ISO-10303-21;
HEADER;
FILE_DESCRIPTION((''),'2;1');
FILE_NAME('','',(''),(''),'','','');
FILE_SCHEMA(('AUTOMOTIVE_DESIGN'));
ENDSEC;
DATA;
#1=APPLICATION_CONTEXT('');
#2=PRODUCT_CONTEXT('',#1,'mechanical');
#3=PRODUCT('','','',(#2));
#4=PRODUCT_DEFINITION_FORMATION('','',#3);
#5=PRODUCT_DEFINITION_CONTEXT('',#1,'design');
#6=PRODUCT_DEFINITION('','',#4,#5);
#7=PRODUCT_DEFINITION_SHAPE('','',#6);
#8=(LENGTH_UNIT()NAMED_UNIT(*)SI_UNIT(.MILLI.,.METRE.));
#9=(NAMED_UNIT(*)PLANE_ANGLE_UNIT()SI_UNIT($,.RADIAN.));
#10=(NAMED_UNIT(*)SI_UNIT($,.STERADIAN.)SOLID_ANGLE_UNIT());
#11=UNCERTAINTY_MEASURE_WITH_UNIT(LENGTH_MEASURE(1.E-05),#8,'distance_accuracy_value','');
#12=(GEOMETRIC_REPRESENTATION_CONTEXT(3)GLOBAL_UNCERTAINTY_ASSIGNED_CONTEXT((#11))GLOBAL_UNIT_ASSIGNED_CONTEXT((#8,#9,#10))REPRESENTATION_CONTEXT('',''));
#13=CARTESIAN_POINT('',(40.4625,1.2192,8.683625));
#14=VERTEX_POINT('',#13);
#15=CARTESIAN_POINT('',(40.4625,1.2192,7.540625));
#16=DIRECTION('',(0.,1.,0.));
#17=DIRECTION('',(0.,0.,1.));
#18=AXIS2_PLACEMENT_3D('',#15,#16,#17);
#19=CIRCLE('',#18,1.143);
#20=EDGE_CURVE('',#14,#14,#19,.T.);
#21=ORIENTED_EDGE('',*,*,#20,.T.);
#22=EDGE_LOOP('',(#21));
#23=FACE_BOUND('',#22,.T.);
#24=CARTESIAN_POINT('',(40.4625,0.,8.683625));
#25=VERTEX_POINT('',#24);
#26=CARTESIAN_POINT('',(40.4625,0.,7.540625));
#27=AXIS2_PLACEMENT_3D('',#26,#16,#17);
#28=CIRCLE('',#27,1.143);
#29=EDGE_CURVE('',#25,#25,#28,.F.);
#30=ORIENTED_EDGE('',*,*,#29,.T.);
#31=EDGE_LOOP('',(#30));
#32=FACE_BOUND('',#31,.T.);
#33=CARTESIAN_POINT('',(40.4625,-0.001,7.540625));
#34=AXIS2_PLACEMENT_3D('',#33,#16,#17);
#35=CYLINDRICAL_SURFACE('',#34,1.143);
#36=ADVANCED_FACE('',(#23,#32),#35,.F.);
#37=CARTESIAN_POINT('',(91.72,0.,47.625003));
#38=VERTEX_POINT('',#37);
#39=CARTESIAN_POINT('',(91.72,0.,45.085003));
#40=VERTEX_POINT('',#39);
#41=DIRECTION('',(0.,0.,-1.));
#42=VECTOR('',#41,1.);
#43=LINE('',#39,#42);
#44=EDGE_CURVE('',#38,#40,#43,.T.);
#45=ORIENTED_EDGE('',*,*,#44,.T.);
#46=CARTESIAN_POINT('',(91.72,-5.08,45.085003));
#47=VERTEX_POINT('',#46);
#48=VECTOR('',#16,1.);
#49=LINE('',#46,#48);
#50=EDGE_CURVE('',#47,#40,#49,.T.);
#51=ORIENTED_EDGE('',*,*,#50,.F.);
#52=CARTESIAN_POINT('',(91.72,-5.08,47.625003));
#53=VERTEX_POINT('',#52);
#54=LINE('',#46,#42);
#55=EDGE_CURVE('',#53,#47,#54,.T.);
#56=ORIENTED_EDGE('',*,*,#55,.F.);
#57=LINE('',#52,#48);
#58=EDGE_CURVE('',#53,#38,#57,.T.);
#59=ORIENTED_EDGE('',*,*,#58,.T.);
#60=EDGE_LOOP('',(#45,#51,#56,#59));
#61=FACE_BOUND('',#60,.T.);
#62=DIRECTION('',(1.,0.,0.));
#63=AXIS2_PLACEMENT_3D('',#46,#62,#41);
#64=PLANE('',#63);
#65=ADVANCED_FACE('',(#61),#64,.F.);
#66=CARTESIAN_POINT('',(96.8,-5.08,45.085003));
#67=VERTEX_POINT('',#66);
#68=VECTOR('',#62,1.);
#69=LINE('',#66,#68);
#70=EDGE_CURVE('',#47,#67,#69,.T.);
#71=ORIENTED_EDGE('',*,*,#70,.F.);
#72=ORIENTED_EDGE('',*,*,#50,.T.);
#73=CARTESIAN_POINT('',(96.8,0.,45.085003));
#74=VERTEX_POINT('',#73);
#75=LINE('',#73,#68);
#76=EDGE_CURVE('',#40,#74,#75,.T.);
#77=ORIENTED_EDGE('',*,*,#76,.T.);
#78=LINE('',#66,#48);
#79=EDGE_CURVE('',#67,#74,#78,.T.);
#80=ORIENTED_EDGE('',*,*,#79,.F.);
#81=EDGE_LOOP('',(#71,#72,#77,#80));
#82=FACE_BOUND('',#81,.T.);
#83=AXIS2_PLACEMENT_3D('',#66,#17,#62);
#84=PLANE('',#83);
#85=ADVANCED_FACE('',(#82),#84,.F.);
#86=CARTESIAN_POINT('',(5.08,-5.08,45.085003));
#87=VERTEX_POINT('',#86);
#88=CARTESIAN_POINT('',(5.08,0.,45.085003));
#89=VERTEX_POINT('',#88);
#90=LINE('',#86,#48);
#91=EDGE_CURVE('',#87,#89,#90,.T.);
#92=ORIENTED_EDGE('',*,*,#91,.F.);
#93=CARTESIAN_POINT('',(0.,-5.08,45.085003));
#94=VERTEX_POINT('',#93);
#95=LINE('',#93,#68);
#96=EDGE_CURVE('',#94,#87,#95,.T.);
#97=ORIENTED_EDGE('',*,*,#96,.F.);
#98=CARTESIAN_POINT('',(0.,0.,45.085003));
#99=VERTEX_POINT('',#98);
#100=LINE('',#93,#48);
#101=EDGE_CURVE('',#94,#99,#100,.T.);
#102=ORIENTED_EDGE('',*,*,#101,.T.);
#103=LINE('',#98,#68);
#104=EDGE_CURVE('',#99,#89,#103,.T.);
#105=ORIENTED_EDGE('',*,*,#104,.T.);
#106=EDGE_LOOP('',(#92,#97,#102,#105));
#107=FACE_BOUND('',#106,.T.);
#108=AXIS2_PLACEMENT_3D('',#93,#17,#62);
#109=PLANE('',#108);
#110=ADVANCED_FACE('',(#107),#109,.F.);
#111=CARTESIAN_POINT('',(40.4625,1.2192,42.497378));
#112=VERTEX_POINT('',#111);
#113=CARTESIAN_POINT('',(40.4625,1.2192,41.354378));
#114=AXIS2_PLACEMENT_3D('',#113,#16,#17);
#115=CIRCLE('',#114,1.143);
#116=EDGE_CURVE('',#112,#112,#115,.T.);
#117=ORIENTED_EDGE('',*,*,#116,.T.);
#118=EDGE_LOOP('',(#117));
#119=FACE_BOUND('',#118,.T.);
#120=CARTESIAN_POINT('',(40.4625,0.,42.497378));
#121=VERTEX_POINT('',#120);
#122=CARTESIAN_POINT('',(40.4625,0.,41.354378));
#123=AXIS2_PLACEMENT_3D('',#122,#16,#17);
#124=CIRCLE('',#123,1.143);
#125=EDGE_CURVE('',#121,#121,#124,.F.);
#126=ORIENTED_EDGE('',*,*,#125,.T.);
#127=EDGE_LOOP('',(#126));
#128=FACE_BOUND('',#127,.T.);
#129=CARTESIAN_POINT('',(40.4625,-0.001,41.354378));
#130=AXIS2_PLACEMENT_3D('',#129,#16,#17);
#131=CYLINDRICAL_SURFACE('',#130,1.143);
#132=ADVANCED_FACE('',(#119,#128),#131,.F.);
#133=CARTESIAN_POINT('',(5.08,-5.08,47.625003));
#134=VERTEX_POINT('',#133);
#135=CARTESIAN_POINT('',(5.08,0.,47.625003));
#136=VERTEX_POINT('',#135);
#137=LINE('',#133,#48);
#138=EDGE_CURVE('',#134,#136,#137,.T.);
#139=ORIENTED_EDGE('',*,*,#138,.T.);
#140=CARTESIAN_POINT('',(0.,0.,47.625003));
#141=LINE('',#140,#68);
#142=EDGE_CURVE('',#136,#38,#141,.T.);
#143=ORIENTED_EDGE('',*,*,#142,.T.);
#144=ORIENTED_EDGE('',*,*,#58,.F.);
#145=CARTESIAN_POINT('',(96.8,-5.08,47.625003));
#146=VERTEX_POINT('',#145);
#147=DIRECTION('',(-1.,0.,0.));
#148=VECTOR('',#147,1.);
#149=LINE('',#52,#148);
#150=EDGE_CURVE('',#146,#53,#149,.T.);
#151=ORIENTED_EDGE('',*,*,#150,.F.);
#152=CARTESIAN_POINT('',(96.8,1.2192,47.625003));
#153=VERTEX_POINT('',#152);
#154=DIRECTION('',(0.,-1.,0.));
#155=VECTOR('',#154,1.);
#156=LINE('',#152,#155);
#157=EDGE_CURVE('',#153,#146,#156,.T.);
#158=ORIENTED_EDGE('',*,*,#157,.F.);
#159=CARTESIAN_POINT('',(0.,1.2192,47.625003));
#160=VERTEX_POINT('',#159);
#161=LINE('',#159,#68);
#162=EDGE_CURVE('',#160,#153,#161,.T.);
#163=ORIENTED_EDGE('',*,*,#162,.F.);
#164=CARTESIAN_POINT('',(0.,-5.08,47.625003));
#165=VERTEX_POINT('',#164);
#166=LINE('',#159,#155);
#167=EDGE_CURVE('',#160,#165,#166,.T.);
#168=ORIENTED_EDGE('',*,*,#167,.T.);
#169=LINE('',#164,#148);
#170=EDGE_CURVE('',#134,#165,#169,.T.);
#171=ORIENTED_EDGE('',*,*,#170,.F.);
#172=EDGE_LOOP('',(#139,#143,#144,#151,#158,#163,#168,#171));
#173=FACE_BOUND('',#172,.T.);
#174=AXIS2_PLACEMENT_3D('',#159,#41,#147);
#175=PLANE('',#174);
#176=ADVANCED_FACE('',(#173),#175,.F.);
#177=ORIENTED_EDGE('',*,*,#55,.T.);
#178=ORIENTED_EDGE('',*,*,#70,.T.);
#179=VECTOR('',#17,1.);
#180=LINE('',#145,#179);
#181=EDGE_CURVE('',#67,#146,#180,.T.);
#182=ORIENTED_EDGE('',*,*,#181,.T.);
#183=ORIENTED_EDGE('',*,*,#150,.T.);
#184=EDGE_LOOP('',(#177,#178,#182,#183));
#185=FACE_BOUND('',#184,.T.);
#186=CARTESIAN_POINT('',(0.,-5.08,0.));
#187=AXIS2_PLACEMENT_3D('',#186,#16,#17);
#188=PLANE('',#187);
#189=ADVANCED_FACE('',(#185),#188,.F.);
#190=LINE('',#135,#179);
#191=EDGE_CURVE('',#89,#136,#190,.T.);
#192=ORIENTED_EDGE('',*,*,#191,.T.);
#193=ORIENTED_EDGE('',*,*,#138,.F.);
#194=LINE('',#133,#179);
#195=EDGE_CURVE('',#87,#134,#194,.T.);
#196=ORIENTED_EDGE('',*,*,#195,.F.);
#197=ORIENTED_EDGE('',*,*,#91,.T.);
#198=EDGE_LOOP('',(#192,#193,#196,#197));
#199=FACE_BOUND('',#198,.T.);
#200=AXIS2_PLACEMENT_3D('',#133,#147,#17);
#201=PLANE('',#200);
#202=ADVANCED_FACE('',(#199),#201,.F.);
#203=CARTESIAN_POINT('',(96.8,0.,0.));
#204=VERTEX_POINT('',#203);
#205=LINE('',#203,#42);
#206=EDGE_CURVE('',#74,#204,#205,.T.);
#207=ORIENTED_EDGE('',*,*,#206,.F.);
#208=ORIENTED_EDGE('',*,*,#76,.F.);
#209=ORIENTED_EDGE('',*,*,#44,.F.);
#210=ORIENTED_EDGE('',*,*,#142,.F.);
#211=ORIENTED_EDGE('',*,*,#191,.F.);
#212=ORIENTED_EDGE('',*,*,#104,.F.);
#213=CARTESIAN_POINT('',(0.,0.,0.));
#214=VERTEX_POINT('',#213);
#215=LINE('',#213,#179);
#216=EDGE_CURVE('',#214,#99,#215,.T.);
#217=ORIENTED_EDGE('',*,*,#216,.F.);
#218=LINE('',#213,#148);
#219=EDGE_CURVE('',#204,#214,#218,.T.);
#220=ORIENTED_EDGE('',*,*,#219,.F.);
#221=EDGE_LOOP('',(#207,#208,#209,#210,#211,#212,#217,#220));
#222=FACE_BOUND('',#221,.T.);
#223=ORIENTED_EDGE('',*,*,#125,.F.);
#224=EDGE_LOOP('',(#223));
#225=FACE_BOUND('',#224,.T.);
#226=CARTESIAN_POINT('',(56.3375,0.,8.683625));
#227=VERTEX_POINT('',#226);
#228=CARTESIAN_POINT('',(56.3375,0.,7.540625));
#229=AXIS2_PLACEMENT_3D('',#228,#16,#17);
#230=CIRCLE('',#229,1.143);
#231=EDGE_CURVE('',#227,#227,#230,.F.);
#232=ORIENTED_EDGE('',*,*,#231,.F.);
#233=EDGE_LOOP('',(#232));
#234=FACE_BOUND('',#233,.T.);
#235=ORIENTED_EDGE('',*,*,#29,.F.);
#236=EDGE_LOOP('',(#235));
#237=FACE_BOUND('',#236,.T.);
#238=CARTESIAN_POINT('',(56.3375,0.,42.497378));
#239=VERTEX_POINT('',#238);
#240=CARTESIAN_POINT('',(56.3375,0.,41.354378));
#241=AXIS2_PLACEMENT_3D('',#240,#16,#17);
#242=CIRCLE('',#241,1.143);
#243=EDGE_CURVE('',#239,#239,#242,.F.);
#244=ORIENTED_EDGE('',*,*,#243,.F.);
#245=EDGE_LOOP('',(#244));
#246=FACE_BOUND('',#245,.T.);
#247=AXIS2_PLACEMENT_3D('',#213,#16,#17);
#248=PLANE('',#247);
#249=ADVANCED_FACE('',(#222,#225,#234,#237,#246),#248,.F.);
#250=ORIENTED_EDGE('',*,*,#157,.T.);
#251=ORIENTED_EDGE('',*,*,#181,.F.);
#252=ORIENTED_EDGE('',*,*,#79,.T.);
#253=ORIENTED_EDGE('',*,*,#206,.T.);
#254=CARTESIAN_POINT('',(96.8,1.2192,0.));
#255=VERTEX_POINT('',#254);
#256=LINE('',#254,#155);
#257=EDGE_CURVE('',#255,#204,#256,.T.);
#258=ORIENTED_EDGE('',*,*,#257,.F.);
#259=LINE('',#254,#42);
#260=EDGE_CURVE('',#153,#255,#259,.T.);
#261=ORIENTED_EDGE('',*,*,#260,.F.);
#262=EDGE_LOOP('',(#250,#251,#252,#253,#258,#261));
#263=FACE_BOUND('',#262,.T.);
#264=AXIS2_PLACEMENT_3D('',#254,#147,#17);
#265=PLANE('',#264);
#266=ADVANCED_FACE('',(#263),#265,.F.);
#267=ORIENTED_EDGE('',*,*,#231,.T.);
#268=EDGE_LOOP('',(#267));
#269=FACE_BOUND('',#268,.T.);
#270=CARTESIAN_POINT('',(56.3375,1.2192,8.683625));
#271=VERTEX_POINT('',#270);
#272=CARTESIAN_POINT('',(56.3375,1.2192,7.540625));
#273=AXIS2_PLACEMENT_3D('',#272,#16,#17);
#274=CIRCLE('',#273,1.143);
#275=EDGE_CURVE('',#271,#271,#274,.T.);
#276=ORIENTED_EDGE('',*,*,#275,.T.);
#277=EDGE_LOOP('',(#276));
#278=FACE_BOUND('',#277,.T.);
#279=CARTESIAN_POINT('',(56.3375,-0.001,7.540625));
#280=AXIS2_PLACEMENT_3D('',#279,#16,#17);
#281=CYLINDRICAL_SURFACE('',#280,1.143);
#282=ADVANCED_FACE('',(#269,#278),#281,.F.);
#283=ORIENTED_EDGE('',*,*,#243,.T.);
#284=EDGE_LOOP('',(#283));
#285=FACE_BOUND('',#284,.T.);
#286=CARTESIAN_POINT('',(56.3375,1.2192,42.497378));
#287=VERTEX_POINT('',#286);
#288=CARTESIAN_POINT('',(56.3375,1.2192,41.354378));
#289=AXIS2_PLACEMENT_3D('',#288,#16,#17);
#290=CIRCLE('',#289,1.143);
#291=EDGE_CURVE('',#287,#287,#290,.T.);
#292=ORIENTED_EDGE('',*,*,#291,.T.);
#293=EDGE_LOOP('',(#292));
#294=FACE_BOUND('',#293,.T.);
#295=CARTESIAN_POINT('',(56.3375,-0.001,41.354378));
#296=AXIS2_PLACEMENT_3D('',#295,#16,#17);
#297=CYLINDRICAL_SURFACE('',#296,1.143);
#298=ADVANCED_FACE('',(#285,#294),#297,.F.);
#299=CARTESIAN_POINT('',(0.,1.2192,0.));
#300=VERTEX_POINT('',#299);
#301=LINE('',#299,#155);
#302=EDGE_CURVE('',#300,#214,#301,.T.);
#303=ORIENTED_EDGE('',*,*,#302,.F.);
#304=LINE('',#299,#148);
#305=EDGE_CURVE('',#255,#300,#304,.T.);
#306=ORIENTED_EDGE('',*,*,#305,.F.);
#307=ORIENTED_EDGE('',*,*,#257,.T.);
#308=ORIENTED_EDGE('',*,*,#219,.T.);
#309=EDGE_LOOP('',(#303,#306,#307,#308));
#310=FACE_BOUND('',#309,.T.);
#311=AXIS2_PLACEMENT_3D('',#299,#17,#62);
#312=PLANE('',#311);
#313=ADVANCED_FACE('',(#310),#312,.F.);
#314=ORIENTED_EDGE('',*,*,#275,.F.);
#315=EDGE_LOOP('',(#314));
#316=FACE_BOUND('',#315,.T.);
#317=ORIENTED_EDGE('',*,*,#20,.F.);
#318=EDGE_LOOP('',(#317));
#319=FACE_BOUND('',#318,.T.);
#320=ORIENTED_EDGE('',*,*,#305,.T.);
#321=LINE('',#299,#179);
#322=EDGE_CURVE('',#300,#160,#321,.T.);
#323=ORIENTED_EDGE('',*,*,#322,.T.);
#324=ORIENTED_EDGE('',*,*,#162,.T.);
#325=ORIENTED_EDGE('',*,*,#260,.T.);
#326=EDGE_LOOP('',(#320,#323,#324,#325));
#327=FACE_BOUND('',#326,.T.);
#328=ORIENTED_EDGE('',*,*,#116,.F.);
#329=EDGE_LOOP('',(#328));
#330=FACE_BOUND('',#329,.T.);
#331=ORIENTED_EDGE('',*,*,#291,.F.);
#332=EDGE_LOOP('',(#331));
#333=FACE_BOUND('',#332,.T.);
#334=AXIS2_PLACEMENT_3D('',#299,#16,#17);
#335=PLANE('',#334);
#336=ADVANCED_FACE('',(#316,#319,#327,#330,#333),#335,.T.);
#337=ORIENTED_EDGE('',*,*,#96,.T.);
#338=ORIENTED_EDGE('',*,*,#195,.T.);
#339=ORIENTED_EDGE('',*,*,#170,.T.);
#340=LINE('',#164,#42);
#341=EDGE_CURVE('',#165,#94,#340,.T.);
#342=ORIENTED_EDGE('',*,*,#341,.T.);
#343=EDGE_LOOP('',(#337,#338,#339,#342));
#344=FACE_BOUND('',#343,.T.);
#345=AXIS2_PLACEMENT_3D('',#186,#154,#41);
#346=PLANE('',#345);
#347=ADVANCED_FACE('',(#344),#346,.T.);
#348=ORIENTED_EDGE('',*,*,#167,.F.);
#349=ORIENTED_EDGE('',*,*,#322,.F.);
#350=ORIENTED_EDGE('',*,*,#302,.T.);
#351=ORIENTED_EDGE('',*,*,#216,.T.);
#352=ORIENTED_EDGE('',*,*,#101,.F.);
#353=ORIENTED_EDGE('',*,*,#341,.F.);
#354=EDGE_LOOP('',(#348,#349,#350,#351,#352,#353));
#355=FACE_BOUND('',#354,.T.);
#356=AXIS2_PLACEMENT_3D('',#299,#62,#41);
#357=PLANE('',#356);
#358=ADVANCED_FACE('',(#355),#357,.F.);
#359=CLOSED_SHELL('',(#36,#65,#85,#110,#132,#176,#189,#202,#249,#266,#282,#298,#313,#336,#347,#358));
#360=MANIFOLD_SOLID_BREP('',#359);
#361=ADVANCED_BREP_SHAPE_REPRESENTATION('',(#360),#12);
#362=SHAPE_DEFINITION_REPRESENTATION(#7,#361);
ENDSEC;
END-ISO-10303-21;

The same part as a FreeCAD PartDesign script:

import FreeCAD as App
import Part
import Sketcher

V = App.Vector
Q = App.Units.Quantity

doc = App.newDocument("Part")
body = doc.addObject("PartDesign::Body", "Body")

sketch1 = body.newObject("Sketcher::SketchObject", "Sketch")
sketch1.AttachmentSupport = (doc.getObject("XZ_Plane"), [""])
sketch1.MapMode = "FlatFace"
sketch1.addGeometry([
    Part.LineSegment(V(0, 0, 0), V(0, 48, 0)),
    Part.LineSegment(V(0, 48, 0), V(97, 48, 0)),
    Part.LineSegment(V(97, 48, 0), V(97, 0, 0)),
    Part.LineSegment(V(97, 0, 0), V(0, 0, 0)),
], False)
sketch1.addConstraint([
    Sketcher.Constraint("Coincident", 0, 2, 1, 1),
    Sketcher.Constraint("Coincident", 1, 2, 2, 1),
    Sketcher.Constraint("Coincident", 2, 2, 3, 1),
    Sketcher.Constraint("Coincident", 3, 2, 0, 1),
    Sketcher.Constraint("Vertical", 0),
    Sketcher.Constraint("Horizontal", 1),
    Sketcher.Constraint("Vertical", 2),
    Sketcher.Constraint("Horizontal", 3),
    Sketcher.Constraint("Coincident", 3, 2, -1, 1),
    Sketcher.Constraint("DistanceY", 0, 1, 0, 2, Q("1.8750001 in")),
    Sketcher.Constraint("DistanceX", 1, 1, 1, 2, 96.8),
])
pad1 = body.newObject("PartDesign::Pad", "Pad")
pad1.Profile = sketch1
pad1.Length = Q("0.048 in")
pad1.Reversed = True

sketch2 = body.newObject("Sketcher::SketchObject", "Sketch001")
sketch2.AttachmentSupport = (doc.getObject("XZ_Plane"), [""])
sketch2.MapMode = "FlatFace"
sketch2.AttachmentOffset = App.Placement(V(0, 0, -0.048 * 25.4), App.Rotation())
sketch2.addGeometry(Part.Circle(V(56.3, 7.5, 0), V(0, 0, 1), 1.1), False)
sketch2.addConstraint([
    Sketcher.Constraint("Diameter", 0, Q("0.09 in")),
    Sketcher.Constraint("DistanceY", -1, 1, 0, 3, Q("0.296875 in")),
    Sketcher.Constraint("DistanceX", -1, 1, 0, 3, 56.3375),
])
pocket1 = body.newObject("PartDesign::Pocket", "Pocket")
pocket1.Profile = sketch2
pocket1.Type = "UpToFirst"
pocket1.Reversed = True

sketch3 = body.newObject("Sketcher::SketchObject", "Sketch002")
sketch3.AttachmentSupport = (doc.getObject("XZ_Plane"), [""])
sketch3.MapMode = "FlatFace"
sketch3.AttachmentOffset = App.Placement(V(0, 0, -0.048 * 25.4), App.Rotation())
sketch3.addGeometry(Part.Circle(V(40.5, 7.5, 0), V(0, 0, 1), 1.1), False)
sketch3.addConstraint([
    Sketcher.Constraint("Diameter", 0, Q("0.09 in")),
    Sketcher.Constraint("DistanceY", -1, 1, 0, 3, Q("0.296875 in")),
    Sketcher.Constraint("DistanceX", -1, 1, 0, 3, 40.4625),
])
pocket2 = body.newObject("PartDesign::Pocket", "Pocket001")
pocket2.Profile = sketch3
pocket2.Type = "UpToFirst"
pocket2.Reversed = True

sketch4 = body.newObject("Sketcher::SketchObject", "Sketch003")
sketch4.AttachmentSupport = (doc.getObject("XZ_Plane"), [""])
sketch4.MapMode = "FlatFace"
sketch4.AttachmentOffset = App.Placement(V(0, 0, -0.048 * 25.4), App.Rotation())
sketch4.addGeometry(Part.Circle(V(56.3, 41.4, 0), V(0, 0, 1), 1.1), False)
sketch4.addConstraint([
    Sketcher.Constraint("Diameter", 0, Q("0.09 in")),
    Sketcher.Constraint("DistanceX", -1, 1, 0, 3, 56.3375),
    Sketcher.Constraint("DistanceY", -1, 1, 0, 3, 41.354378),
])
pocket3 = body.newObject("PartDesign::Pocket", "Pocket002")
pocket3.Profile = sketch4
pocket3.Type = "UpToFirst"
pocket3.Reversed = True

sketch5 = body.newObject("Sketcher::SketchObject", "Sketch004")
sketch5.AttachmentSupport = (doc.getObject("XZ_Plane"), [""])
sketch5.MapMode = "FlatFace"
sketch5.AttachmentOffset = App.Placement(V(0, 0, -0.048 * 25.4), App.Rotation())
sketch5.addGeometry(Part.Circle(V(40.5, 41.4, 0), V(0, 0, 1), 1.1), False)
sketch5.addConstraint([
    Sketcher.Constraint("Diameter", 0, Q("0.09 in")),
    Sketcher.Constraint("DistanceX", -1, 1, 0, 3, 40.4625),
    Sketcher.Constraint("DistanceY", -1, 1, 0, 3, 41.354378),
])
pocket4 = body.newObject("PartDesign::Pocket", "Pocket003")
pocket4.Profile = sketch5
pocket4.Type = "UpToFirst"
pocket4.Reversed = True

sketch6 = body.newObject("Sketcher::SketchObject", "Sketch005")
sketch6.AttachmentSupport = (doc.getObject("XZ_Plane"), [""])
sketch6.MapMode = "FlatFace"
sketch6.addGeometry([
    Part.LineSegment(V(96.8, 45.1, 0), V(96.8, 47.6, 0)),
    Part.LineSegment(V(96.8, 47.6, 0), V(91.7, 47.6, 0)),
    Part.LineSegment(V(91.7, 47.6, 0), V(91.7, 45.1, 0)),
    Part.LineSegment(V(91.7, 45.1, 0), V(96.8, 45.1, 0)),
    Part.LineSegment(V(5.1, 45.1, 0), V(5.1, 47.6, 0)),
    Part.LineSegment(V(5.1, 47.6, 0), V(0, 47.6, 0)),
    Part.LineSegment(V(0, 47.6, 0), V(0, 45.1, 0)),
    Part.LineSegment(V(0, 45.1, 0), V(5.1, 45.1, 0)),
], False)
sketch6.addConstraint([
    Sketcher.Constraint("Coincident", 0, 2, 1, 1),
    Sketcher.Constraint("Coincident", 1, 2, 2, 1),
    Sketcher.Constraint("Coincident", 2, 2, 3, 1),
    Sketcher.Constraint("Coincident", 3, 2, 0, 1),
    Sketcher.Constraint("Coincident", 4, 2, 5, 1),
    Sketcher.Constraint("Coincident", 5, 2, 6, 1),
    Sketcher.Constraint("Coincident", 6, 2, 7, 1),
    Sketcher.Constraint("Coincident", 7, 2, 4, 1),
    Sketcher.Constraint("Vertical", 0),
    Sketcher.Constraint("Horizontal", 1),
    Sketcher.Constraint("Vertical", 2),
    Sketcher.Constraint("Horizontal", 3),
    Sketcher.Constraint("Vertical", 4),
    Sketcher.Constraint("Horizontal", 5),
    Sketcher.Constraint("Vertical", 6),
    Sketcher.Constraint("Horizontal", 7),
    Sketcher.Constraint("PointOnObject", 5, 2, -2),
    Sketcher.Constraint("Horizontal", 1, 2, 4, 2),
    Sketcher.Constraint("Horizontal", 3, 2, 6, 2),
    Sketcher.Constraint("Equal", 3, 5),
    Sketcher.Constraint("DistanceX", 1, 2, 1, 1, Q("0.2 in")),
    Sketcher.Constraint("DistanceY", 0, 1, 0, 2, Q("0.1 in")),
    Sketcher.Constraint("DistanceY", -1, 1, 0, 2, Q("1.8750001 in")),
    Sketcher.Constraint("DistanceX", -1, 1, 0, 2, 96.8),
])
pad2 = body.newObject("PartDesign::Pad", "Pad001")
pad2.Profile = sketch6
pad2.Length = Q("0.2 in")

doc.recompute()
